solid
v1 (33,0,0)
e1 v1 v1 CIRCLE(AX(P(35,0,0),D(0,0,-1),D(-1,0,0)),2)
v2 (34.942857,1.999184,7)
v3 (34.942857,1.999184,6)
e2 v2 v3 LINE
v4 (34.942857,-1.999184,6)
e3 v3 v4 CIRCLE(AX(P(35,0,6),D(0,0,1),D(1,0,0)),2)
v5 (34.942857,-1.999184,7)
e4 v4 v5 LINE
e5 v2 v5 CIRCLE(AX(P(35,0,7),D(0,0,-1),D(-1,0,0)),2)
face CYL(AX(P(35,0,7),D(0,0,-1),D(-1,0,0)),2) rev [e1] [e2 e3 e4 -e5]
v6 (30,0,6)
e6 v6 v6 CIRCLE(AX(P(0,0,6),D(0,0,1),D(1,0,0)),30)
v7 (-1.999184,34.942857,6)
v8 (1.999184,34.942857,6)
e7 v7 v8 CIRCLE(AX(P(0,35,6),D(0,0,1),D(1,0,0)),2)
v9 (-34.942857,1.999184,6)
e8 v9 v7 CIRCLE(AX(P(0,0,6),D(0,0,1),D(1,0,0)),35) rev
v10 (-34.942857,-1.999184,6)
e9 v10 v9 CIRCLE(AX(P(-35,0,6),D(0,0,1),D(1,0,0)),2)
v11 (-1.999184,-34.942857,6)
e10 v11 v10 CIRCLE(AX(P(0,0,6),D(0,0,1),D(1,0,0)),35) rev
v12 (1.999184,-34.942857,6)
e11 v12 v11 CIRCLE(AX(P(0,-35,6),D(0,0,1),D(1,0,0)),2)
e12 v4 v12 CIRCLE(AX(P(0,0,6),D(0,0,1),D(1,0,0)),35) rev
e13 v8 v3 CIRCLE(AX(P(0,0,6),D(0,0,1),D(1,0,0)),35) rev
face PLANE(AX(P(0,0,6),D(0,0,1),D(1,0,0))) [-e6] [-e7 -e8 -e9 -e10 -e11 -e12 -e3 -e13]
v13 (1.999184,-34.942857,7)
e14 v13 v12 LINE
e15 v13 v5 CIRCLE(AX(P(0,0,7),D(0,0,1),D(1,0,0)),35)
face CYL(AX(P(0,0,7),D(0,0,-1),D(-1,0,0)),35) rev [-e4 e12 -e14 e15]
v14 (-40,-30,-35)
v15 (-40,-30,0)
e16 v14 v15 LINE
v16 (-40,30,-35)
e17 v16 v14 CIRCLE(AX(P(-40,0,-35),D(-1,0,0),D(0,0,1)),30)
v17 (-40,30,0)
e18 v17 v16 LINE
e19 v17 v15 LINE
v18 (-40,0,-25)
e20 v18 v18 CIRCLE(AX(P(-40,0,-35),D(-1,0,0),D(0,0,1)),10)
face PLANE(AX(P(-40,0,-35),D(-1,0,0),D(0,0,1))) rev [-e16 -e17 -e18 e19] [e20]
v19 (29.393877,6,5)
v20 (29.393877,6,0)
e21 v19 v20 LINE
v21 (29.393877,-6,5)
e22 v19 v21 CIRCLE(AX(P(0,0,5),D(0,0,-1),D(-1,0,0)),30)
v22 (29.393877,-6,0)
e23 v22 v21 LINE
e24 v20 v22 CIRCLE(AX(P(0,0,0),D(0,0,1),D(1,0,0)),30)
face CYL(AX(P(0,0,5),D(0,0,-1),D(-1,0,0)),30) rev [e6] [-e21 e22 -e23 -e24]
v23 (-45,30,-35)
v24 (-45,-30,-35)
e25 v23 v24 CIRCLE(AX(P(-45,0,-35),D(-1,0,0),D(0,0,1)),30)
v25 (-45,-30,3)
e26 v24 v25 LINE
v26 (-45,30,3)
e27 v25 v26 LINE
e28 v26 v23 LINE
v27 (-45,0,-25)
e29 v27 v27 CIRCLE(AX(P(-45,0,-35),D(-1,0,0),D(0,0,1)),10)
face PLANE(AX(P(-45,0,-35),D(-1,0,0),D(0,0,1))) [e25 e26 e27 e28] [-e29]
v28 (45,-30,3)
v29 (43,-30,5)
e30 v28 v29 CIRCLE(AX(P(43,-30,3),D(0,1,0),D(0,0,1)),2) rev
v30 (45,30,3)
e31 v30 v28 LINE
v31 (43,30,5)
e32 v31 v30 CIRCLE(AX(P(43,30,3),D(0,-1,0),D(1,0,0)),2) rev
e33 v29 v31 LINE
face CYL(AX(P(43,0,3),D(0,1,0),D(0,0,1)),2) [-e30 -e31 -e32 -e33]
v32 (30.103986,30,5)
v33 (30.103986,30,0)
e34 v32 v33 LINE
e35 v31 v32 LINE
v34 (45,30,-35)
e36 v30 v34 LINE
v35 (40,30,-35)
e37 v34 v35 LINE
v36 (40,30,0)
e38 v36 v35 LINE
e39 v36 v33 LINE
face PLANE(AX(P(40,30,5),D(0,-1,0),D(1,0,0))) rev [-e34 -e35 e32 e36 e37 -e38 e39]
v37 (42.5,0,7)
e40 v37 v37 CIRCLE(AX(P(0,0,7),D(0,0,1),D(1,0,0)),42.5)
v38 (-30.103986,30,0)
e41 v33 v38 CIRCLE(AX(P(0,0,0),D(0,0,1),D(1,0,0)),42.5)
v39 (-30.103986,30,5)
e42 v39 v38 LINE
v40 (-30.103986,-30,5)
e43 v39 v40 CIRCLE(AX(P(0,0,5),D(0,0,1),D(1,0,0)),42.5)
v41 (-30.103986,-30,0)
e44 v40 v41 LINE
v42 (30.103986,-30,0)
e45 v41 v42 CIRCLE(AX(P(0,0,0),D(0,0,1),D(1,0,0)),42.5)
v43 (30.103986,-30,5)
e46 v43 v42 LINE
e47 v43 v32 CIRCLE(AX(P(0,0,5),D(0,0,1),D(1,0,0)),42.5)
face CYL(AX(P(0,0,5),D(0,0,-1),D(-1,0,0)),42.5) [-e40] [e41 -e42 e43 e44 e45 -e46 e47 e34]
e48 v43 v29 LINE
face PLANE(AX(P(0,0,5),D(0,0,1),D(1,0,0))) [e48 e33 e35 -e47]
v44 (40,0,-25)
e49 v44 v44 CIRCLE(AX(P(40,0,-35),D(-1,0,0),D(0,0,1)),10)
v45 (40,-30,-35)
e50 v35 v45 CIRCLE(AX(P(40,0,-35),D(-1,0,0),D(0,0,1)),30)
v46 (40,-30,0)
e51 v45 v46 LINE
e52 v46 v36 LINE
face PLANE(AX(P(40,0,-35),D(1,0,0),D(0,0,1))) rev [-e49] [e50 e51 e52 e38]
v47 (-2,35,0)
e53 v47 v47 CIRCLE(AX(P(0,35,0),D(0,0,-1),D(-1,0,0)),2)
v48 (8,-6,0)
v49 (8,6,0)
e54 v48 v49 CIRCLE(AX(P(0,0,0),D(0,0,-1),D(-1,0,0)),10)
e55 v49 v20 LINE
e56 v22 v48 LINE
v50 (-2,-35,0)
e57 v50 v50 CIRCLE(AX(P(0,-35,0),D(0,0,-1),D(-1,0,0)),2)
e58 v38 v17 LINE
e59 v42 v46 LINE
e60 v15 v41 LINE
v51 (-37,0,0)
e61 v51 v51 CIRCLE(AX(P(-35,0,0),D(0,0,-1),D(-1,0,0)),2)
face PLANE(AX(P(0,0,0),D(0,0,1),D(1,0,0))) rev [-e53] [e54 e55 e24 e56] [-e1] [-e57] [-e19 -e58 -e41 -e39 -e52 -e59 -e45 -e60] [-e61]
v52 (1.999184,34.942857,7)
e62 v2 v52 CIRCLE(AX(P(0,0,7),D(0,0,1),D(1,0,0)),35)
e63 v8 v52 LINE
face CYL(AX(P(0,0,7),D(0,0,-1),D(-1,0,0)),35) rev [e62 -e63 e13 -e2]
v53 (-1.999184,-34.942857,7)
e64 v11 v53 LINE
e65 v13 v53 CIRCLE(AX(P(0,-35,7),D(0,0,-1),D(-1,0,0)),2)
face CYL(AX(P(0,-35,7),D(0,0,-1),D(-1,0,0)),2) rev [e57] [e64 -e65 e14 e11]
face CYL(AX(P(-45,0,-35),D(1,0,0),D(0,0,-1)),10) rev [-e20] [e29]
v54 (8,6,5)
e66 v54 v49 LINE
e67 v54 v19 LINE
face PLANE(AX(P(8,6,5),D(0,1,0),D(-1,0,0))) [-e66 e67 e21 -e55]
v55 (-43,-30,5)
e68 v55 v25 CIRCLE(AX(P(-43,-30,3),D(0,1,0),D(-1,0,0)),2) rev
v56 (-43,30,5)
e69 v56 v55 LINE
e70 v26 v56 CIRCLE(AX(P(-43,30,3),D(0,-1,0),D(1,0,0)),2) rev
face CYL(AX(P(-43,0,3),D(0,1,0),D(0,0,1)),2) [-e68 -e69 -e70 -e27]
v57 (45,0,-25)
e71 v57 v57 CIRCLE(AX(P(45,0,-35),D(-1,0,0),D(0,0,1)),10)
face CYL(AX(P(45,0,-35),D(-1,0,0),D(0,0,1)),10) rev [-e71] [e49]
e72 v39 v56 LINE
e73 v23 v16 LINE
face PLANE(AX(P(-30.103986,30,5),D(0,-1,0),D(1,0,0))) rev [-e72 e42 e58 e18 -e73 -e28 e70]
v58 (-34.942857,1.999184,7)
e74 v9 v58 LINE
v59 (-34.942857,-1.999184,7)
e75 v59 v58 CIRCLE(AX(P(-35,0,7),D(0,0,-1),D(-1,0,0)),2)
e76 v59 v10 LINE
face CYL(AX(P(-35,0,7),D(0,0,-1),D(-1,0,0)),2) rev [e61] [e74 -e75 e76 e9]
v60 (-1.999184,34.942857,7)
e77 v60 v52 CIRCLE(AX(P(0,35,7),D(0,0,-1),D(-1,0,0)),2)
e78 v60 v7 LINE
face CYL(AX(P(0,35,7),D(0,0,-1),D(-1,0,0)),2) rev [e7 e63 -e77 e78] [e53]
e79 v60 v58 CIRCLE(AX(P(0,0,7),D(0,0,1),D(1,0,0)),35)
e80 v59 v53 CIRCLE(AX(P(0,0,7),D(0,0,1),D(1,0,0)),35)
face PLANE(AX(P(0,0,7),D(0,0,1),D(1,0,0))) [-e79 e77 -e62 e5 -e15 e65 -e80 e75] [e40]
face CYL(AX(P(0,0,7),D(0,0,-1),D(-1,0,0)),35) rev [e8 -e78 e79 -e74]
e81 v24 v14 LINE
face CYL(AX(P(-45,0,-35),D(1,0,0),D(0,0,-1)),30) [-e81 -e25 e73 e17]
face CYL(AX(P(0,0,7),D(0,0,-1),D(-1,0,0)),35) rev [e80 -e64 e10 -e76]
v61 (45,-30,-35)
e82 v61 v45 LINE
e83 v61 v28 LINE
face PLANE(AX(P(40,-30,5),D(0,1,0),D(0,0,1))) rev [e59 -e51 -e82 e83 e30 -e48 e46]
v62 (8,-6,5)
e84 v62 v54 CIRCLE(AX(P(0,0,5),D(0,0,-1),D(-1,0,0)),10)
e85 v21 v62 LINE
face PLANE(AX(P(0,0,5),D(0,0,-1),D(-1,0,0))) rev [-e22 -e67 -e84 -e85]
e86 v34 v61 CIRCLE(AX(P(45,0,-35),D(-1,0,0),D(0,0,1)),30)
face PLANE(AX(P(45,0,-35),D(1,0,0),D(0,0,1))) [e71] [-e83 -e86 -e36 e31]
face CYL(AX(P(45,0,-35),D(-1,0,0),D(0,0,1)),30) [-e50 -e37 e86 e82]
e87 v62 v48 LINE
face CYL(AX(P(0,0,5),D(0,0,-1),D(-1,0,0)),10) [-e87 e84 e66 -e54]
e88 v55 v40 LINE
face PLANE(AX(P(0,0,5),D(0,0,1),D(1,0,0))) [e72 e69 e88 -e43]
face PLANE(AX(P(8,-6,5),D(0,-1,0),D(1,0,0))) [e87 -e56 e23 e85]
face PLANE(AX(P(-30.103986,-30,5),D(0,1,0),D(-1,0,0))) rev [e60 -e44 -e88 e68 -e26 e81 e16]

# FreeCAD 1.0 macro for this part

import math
import FreeCAD as App
import Part
import Sketcher
from FreeCAD import Vector
Q = App.Units.Quantity


def edges_at(feature, points):
    """Names of the edges that pass closest to the given points."""
    edges = feature.Shape.Edges
    near = lambda p: min(range(len(edges)), key=lambda i: edges[i].distToShape(Part.Vertex(*p))[0])
    return sorted({f"Edge{near(p) + 1}" for p in points})

doc = App.newDocument("Part")
body = doc.addObject("PartDesign::Body", "Body")

# Sketch on XY plane
sketch1 = doc.addObject("Sketcher::SketchObject", "Sketch")
body.addObject(sketch1)
sketch1.AttachmentSupport = (doc.XY_Plane, [""])
sketch1.MapMode = "FlatFace"
sketch1.addGeometry(Part.LineSegment(Vector(-40, -30, 0), Vector(-30, -30, 0)), False)
sketch1.addGeometry(Part.ArcOfCircle(Part.Circle(Vector(0, 0, 0), Vector(0, 0, 1), 42), math.radians(-135), math.radians(-45)), False)
sketch1.addGeometry(Part.LineSegment(Vector(30, -30, 0), Vector(40, -30, 0)), False)
sketch1.addGeometry(Part.LineSegment(Vector(40, -30, 0), Vector(40, 30, 0)), False)
sketch1.addGeometry(Part.LineSegment(Vector(40, 30, 0), Vector(30, 30, 0)), False)
sketch1.addGeometry(Part.ArcOfCircle(Part.Circle(Vector(0, 0, 0), Vector(0, 0, 1), 42), math.radians(45), math.radians(135)), False)
sketch1.addGeometry(Part.LineSegment(Vector(-30, 30, 0), Vector(-40, 30, 0)), False)
sketch1.addGeometry(Part.LineSegment(Vector(-40, 30, 0), Vector(-40, -30, 0)), False)
sketch1.addGeometry(Part.Circle(Vector(0, 0, 0), Vector(0, 0, 1), 30), False)
sketch1.addConstraint(Sketcher.Constraint("Coincident", 0, 2, 1, 1))
sketch1.addConstraint(Sketcher.Constraint("Coincident", 1, 2, 2, 1))
sketch1.addConstraint(Sketcher.Constraint("Coincident", 2, 2, 3, 1))
sketch1.addConstraint(Sketcher.Constraint("Coincident", 3, 2, 4, 1))
sketch1.addConstraint(Sketcher.Constraint("Coincident", 4, 2, 5, 1))
sketch1.addConstraint(Sketcher.Constraint("Coincident", 5, 2, 6, 1))
sketch1.addConstraint(Sketcher.Constraint("Coincident", 6, 2, 7, 1))
sketch1.addConstraint(Sketcher.Constraint("Coincident", 7, 2, 0, 1))
sketch1.addConstraint(Sketcher.Constraint("Horizontal", 0))
sketch1.addConstraint(Sketcher.Constraint("Horizontal", 2))
sketch1.addConstraint(Sketcher.Constraint("Vertical", 3))
sketch1.addConstraint(Sketcher.Constraint("Horizontal", 4))
sketch1.addConstraint(Sketcher.Constraint("Horizontal", 6))
sketch1.addConstraint(Sketcher.Constraint("Vertical", 7))
sketch1.addConstraint(Sketcher.Constraint("Coincident", 1, 3, -1, 1))
sketch1.addConstraint(Sketcher.Constraint("Coincident", 5, 3, -1, 1))
sketch1.addConstraint(Sketcher.Constraint("Coincident", 8, 3, -1, 1))
sketch1.addConstraint(Sketcher.Constraint("Equal", 1, 5))
sketch1.addConstraint(Sketcher.Constraint("Symmetric", 2, 2, 6, 2, -1, 1))
sketch1.addConstraint(Sketcher.Constraint("Horizontal", 0, 2, 1, 2))
sketch1.addConstraint(Sketcher.Constraint("Horizontal", 4, 2, 5, 2))
sketch1.addConstraint(Sketcher.Constraint("Diameter", 8, Q("60 mm")))
sketch1.addConstraint(Sketcher.Constraint("Radius", 1, Q("42.499999 mm")))
sketch1.addConstraint(Sketcher.Constraint("DistanceY", 3, 1, 3, 2, Q("60 mm")))
sketch1.addConstraint(Sketcher.Constraint("DistanceX", -1, 1, 2, 2, Q("40 mm")))
pad1 = doc.addObject("PartDesign::Pad", "Pad")
body.addObject(pad1)
pad1.Profile = sketch1
pad1.Length = 5

# Sketch on XY plane
sketch2 = doc.addObject("Sketcher::SketchObject", "Sketch001")
body.addObject(sketch2)
sketch2.AttachmentSupport = (doc.XY_Plane, [""])
sketch2.MapMode = "FlatFace"
sketch2.AttachmentOffset = App.Placement(Vector(0, 0, 5), App.Rotation())
sketch2.addGeometry(Part.Circle(Vector(0, 0, 0), Vector(0, 0, 1), 35), False)
sketch2.addGeometry(Part.Circle(Vector(0, 0, 0), Vector(0, 0, 1), 30), False)
sketch2.addConstraint(Sketcher.Constraint("Coincident", 0, 3, -1, 1))
sketch2.addConstraint(Sketcher.Constraint("Coincident", 1, 3, -1, 1))
sketch2.addConstraint(Sketcher.Constraint("Diameter", 0, Q("70 mm")))
sketch2.addConstraint(Sketcher.Constraint("Diameter", 1, Q("60 mm")))
pad2 = doc.addObject("PartDesign::Pad", "Pad001")
body.addObject(pad2)
pad2.Profile = sketch2
pad2.Length = 1

# Sketch on XY plane
sketch3 = doc.addObject("Sketcher::SketchObject", "Sketch002")
body.addObject(sketch3)
sketch3.AttachmentSupport = (doc.XY_Plane, [""])
sketch3.MapMode = "FlatFace"
sketch3.AttachmentOffset = App.Placement(Vector(0, 0, 5), App.Rotation())
sketch3.addGeometry(Part.Circle(Vector(0, 0, 0), Vector(0, 0, 1), 42), False)
sketch3.addGeometry(Part.Circle(Vector(0, 0, 0), Vector(0, 0, 1), 35), False)
sketch3.addConstraint(Sketcher.Constraint("Coincident", 0, 3, -1, 1))
sketch3.addConstraint(Sketcher.Constraint("Coincident", 1, 3, -1, 1))
sketch3.addConstraint(Sketcher.Constraint("Diameter", 0, Q("85 mm")))
sketch3.addConstraint(Sketcher.Constraint("Diameter", 1, Q("70 mm")))
pad3 = doc.addObject("PartDesign::Pad", "Pad002")
body.addObject(pad3)
pad3.Profile = sketch3
pad3.Length = 2

# Sketch on XY plane
sketch4 = doc.addObject("Sketcher::SketchObject", "Sketch003")
body.addObject(sketch4)
sketch4.AttachmentSupport = (doc.XY_Plane, [""])
sketch4.MapMode = "FlatFace"
sketch4.addGeometry(Part.Circle(Vector(0, 35, 0), Vector(0, 0, 1), 2), False)
sketch4.addGeometry(Part.Circle(Vector(-35, 0, 0), Vector(0, 0, 1), 2), False)
sketch4.addGeometry(Part.Circle(Vector(0, -35, 0), Vector(0, 0, 1), 2), False)
sketch4.addGeometry(Part.Circle(Vector(35, 0, 0), Vector(0, 0, 1), 2), False)
sketch4.addConstraint(Sketcher.Constraint("Equal", 0, 1))
sketch4.addConstraint(Sketcher.Constraint("Equal", 1, 2))
sketch4.addConstraint(Sketcher.Constraint("Equal", 2, 3))
sketch4.addConstraint(Sketcher.Constraint("Symmetric", 0, 3, 2, 3, -1, 1))
sketch4.addConstraint(Sketcher.Constraint("Symmetric", 1, 3, 3, 3, -1, 1))
sketch4.addConstraint(Sketcher.Constraint("PointOnObject", 0, 3, -2))
sketch4.addConstraint(Sketcher.Constraint("PointOnObject", 1, 3, -1))
sketch4.addConstraint(Sketcher.Constraint("Diameter", 0, Q("4 mm")))
sketch4.addConstraint(Sketcher.Constraint("DistanceY", -1, 1, 0, 3, Q("35 mm")))
sketch4.addConstraint(Sketcher.Constraint("DistanceX", 1, 3, -1, 1, Q("35 mm")))
pocket1 = doc.addObject("PartDesign::Pocket", "Pocket")
body.addObject(pocket1)
pocket1.Profile = sketch4
pocket1.Type = "ThroughAll"
pocket1.Reversed = True

# Sketch on YZ plane
sketch5 = doc.addObject("Sketcher::SketchObject", "Sketch004")
body.addObject(sketch5)
sketch5.AttachmentSupport = (doc.YZ_Plane, [""])
sketch5.MapMode = "FlatFace"
sketch5.AttachmentOffset = App.Placement(Vector(0, 0, -40), App.Rotation())
sketch5.addGeometry(Part.LineSegment(Vector(-30, -35, 0), Vector(-30, 5, 0)), False)
sketch5.addGeometry(Part.LineSegment(Vector(-30, 5, 0), Vector(30, 5, 0)), False)
sketch5.addGeometry(Part.LineSegment(Vector(30, 5, 0), Vector(30, -35, 0)), False)
sketch5.addGeometry(Part.ArcOfCircle(Part.Circle(Vector(0, -35, 0), Vector(0, 0, 1), 30), math.radians(180), math.radians(360)), False)
sketch5.addGeometry(Part.Circle(Vector(0, -35, 0), Vector(0, 0, 1), 10), False)
sketch5.addConstraint(Sketcher.Constraint("Coincident", 0, 2, 1, 1))
sketch5.addConstraint(Sketcher.Constraint("Coincident", 1, 2, 2, 1))
sketch5.addConstraint(Sketcher.Constraint("Tangent", 2, 2, 3, 2))
sketch5.addConstraint(Sketcher.Constraint("Tangent", 3, 1, 0, 1))
sketch5.addConstraint(Sketcher.Constraint("Vertical", 0))
sketch5.addConstraint(Sketcher.Constraint("Horizontal", 1))
sketch5.addConstraint(Sketcher.Constraint("Vertical", 2))
sketch5.addConstraint(Sketcher.Constraint("Coincident", 4, 3, 3, 3))
sketch5.addConstraint(Sketcher.Constraint("PointOnObject", 3, 3, -2))
sketch5.addConstraint(Sketcher.Constraint("Diameter", 4, Q("20 mm")))
sketch5.addConstraint(Sketcher.Constraint("Radius", 3, Q("30 mm")))
sketch5.addConstraint(Sketcher.Constraint("DistanceY", 0, 1, 0, 2, Q("40 mm")))
sketch5.addConstraint(Sketcher.Constraint("DistanceY", 3, 3, -1, 1, Q("35 mm")))
pad4 = doc.addObject("PartDesign::Pad", "Pad003")
body.addObject(pad4)
pad4.Profile = sketch5
pad4.Length = 5
pad4.Reversed = True
doc.recompute()

fillet = doc.addObject("PartDesign::Fillet", "Fillet")
body.addObject(fillet)
fillet.Base = (pad4, edges_at(pad4, [(-45, 0, 5)]))
fillet.Radius = 2
doc.recompute()

mirrored = doc.addObject("PartDesign::Mirrored", "Mirrored")
body.addObject(mirrored)
mirrored.Originals = [pad4]
mirrored.MirrorPlane = (doc.YZ_Plane, [""])
body.Tip = mirrored
doc.recompute()

fillet2 = doc.addObject("PartDesign::Fillet", "Fillet001")
body.addObject(fillet2)
fillet2.Base = (mirrored, edges_at(mirrored, [(45, 0, 5)]))
fillet2.Radius = 2

# Sketch on XY plane
sketch6 = doc.addObject("Sketcher::SketchObject", "Sketch005")
body.addObject(sketch6)
sketch6.AttachmentSupport = (doc.XY_Plane, [""])
sketch6.MapMode = "FlatFace"
sketch6.addGeometry(Part.LineSegment(Vector(30, -6, 0), Vector(8, -6, 0)), False)
sketch6.addGeometry(Part.ArcOfCircle(Part.Circle(Vector(0, 0, 0), Vector(0, 0, 1), 10), math.radians(37), math.radians(323)), False)
sketch6.addGeometry(Part.LineSegment(Vector(8, 6, 0), Vector(30, 6, 0)), False)
sketch6.addGeometry(Part.ArcOfCircle(Part.Circle(Vector(0, 0, 0), Vector(0, 0, 1), 30), math.radians(-11), math.radians(11)), False)
sketch6.addConstraint(Sketcher.Constraint("Coincident", 0, 2, 1, 2))
sketch6.addConstraint(Sketcher.Constraint("Coincident", 1, 1, 2, 1))
sketch6.addConstraint(Sketcher.Constraint("Coincident", 2, 2, 3, 2))
sketch6.addConstraint(Sketcher.Constraint("Coincident", 3, 1, 0, 1))
sketch6.addConstraint(Sketcher.Constraint("Horizontal", 0))
sketch6.addConstraint(Sketcher.Constraint("Horizontal", 2))
sketch6.addConstraint(Sketcher.Constraint("Coincident", 1, 3, -1, 1))
sketch6.addConstraint(Sketcher.Constraint("Coincident", 3, 3, -1, 1))
sketch6.addConstraint(Sketcher.Constraint("Vertical", 0, 2, 1, 1))
sketch6.addConstraint(Sketcher.Constraint("Radius", 1, Q("10 mm")))
sketch6.addConstraint(Sketcher.Constraint("DistanceX", -1, 1, 0, 2, Q("8 mm")))
sketch6.addConstraint(Sketcher.Constraint("Radius", 3, Q("30.286493 mm")))
pad5 = doc.addObject("PartDesign::Pad", "Pad004")
body.addObject(pad5)
pad5.Profile = sketch6
pad5.Length = 5

doc.recompute()
